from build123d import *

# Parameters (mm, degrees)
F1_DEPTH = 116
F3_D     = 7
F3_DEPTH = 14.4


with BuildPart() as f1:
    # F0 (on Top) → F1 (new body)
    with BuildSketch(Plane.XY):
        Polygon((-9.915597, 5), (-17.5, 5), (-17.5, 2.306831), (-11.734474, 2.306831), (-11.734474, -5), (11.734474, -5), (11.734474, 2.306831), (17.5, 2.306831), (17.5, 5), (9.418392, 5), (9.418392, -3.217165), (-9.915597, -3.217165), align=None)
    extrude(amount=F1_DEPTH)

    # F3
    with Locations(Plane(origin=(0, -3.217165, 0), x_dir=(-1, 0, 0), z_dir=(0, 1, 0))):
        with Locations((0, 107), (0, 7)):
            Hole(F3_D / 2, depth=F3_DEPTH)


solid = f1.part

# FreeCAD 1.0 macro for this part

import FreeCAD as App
import Part
import Sketcher
from FreeCAD import Vector

doc = App.newDocument("Part")
body = doc.addObject("PartDesign::Body", "Body")

# Sketch on XY plane
sketch1 = body.newObject("Sketcher::SketchObject", "Sketch")
sketch1.AttachmentSupport = (doc.getObject("XY_Plane"), [""])
sketch1.MapMode = "FlatFace"
sketch1.addGeometry(Part.LineSegment(Vector(-9.9, 5, 0), Vector(-17.5, 5, 0)), False)
sketch1.addGeometry(Part.LineSegment(Vector(-17.5, 5, 0), Vector(-17.5, 2.3, 0)), False)
sketch1.addGeometry(Part.LineSegment(Vector(-17.5, 2.3, 0), Vector(-11.7, 2.3, 0)), False)
sketch1.addGeometry(Part.LineSegment(Vector(-11.7, 2.3, 0), Vector(-11.7, -5, 0)), False)
sketch1.addGeometry(Part.LineSegment(Vector(-11.7, -5, 0), Vector(11.7, -5, 0)), False)
sketch1.addGeometry(Part.LineSegment(Vector(11.7, -5, 0), Vector(11.7, 2.3, 0)), False)
sketch1.addGeometry(Part.LineSegment(Vector(11.7, 2.3, 0), Vector(17.5, 2.3, 0)), False)
sketch1.addGeometry(Part.LineSegment(Vector(17.5, 2.3, 0), Vector(17.5, 5, 0)), False)
sketch1.addGeometry(Part.LineSegment(Vector(17.5, 5, 0), Vector(9.4, 5, 0)), False)
sketch1.addGeometry(Part.LineSegment(Vector(9.4, 5, 0), Vector(9.4, -3.2, 0)), False)
sketch1.addGeometry(Part.LineSegment(Vector(9.4, -3.2, 0), Vector(-9.9, -3.2, 0)), False)
sketch1.addGeometry(Part.LineSegment(Vector(-9.9, -3.2, 0), Vector(-9.9, 5, 0)), False)
sketch1.addConstraint(Sketcher.Constraint("Coincident", 0, 2, 1, 1))
sketch1.addConstraint(Sketcher.Constraint("Coincident", 1, 2, 2, 1))
sketch1.addConstraint(Sketcher.Constraint("Coincident", 2, 2, 3, 1))
sketch1.addConstraint(Sketcher.Constraint("Coincident", 3, 2, 4, 1))
sketch1.addConstraint(Sketcher.Constraint("Coincident", 4, 2, 5, 1))
sketch1.addConstraint(Sketcher.Constraint("Coincident", 5, 2, 6, 1))
sketch1.addConstraint(Sketcher.Constraint("Coincident", 6, 2, 7, 1))
sketch1.addConstraint(Sketcher.Constraint("Coincident", 7, 2, 8, 1))
sketch1.addConstraint(Sketcher.Constraint("Coincident", 8, 2, 9, 1))
sketch1.addConstraint(Sketcher.Constraint("Coincident", 9, 2, 10, 1))
sketch1.addConstraint(Sketcher.Constraint("Coincident", 10, 2, 11, 1))
sketch1.addConstraint(Sketcher.Constraint("Coincident", 11, 2, 0, 1))
sketch1.addConstraint(Sketcher.Constraint("Horizontal", 0))
sketch1.addConstraint(Sketcher.Constraint("Vertical", 1))
sketch1.addConstraint(Sketcher.Constraint("Horizontal", 2))
sketch1.addConstraint(Sketcher.Constraint("Vertical", 3))
sketch1.addConstraint(Sketcher.Constraint("Horizontal", 4))
sketch1.addConstraint(Sketcher.Constraint("Vertical", 5))
sketch1.addConstraint(Sketcher.Constraint("Horizontal", 6))
sketch1.addConstraint(Sketcher.Constraint("Vertical", 7))
sketch1.addConstraint(Sketcher.Constraint("Horizontal", 8))
sketch1.addConstraint(Sketcher.Constraint("Vertical", 9))
sketch1.addConstraint(Sketcher.Constraint("Horizontal", 10))
sketch1.addConstraint(Sketcher.Constraint("Vertical", 11))
sketch1.addConstraint(Sketcher.Constraint("Symmetric", 2, 2, 5, 2, -2))
sketch1.addConstraint(Sketcher.Constraint("Symmetric", 0, 2, 7, 2, -2))
sketch1.addConstraint(Sketcher.Constraint("DistanceY", -1, 1, 0, 2, 5.0))
sketch1.addConstraint(Sketcher.Constraint("DistanceY", 3, 2, -1, 1, 5.0))
sketch1.addConstraint(Sketcher.Constraint("DistanceX", 1, 2, 6, 2, 35.0))
sketch1.addConstraint(Sketcher.Constraint("DistanceX", 4, 1, 4, 2, 23.468948))
sketch1.addConstraint(Sketcher.Constraint("DistanceX", 10, 2, 10, 1, 19.333989))
sketch1.addConstraint(Sketcher.Constraint("DistanceY", 1, 2, 1, 1, 2.693169))
sketch1.addConstraint(Sketcher.Constraint("DistanceX", 0, 2, 0, 1, 7.584403))
sketch1.addConstraint(Sketcher.Constraint("DistanceY", 9, 2, 9, 1, 8.217165))
pad1 = body.newObject("PartDesign::Pad", "Pad")
pad1.Profile = sketch1
pad1.Length = 116

# Sketch on XZ plane
sketch2 = body.newObject("Sketcher::SketchObject", "Sketch001")
sketch2.AttachmentSupport = (doc.getObject("XZ_Plane"), [""])
sketch2.MapMode = "FlatFace"
sketch2.AttachmentOffset = App.Placement(Vector(0, 0, 3.217165), App.Rotation())
sketch2.addGeometry(Part.Circle(Vector(0, 107, 0), Vector(0, 0, 1), 3.5), False)
sketch2.addGeometry(Part.Circle(Vector(0, 7, 0), Vector(0, 0, 1), 3.5), False)
sketch2.addConstraint(Sketcher.Constraint("Equal", 0, 1))
sketch2.addConstraint(Sketcher.Constraint("PointOnObject", 0, 3, -2))
sketch2.addConstraint(Sketcher.Constraint("PointOnObject", 1, 3, -2))
sketch2.addConstraint(Sketcher.Constraint("Diameter", 0, 7.0))
sketch2.addConstraint(Sketcher.Constraint("DistanceY", -1, 1, 0, 3, 107.0))
sketch2.addConstraint(Sketcher.Constraint("DistanceY", -1, 1, 1, 3, 7.0))
doc.recompute()
hole = body.newObject("PartDesign::Hole", "Hole")
hole.Profile = sketch2
hole.ThreadType = "None"
hole.Diameter = 7
hole.DepthType = "Dimension"
hole.Depth = 14.4
hole.DrillPoint = "Flat"
hole.Reversed = True

doc.recompute()
